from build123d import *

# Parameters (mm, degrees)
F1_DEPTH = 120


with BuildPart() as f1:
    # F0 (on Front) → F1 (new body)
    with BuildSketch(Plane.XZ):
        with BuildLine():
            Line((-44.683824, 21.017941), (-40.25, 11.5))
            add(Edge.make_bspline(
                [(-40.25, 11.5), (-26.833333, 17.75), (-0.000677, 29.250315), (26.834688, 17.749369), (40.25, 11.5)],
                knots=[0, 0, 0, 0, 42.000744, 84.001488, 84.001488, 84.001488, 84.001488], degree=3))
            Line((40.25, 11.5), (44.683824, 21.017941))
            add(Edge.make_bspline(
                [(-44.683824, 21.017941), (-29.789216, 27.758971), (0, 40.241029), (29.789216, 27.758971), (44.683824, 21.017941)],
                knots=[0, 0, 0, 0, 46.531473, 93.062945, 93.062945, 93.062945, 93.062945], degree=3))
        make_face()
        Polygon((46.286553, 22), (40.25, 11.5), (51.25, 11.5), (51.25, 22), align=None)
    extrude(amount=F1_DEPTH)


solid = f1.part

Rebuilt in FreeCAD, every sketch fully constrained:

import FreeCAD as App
import Part
import Sketcher


def add_polygon(sketch, points):
    """Adds a closed chain of lines whose ends are joined by coincident constraints."""
    first, n = sketch.GeometryCount, len(points)
    for a, b in zip(points, points[1:] + points[:1]):
        sketch.addGeometry(Part.LineSegment(App.Vector(*a, 0), App.Vector(*b, 0)), False)
    for i in range(n):
        sketch.addConstraint(Sketcher.Constraint("Coincident", first + i, 2, first + (i + 1) % n, 1))

doc = App.newDocument("Part")
body = doc.addObject("PartDesign::Body", "Body")
body.AllowCompound = True

sketch1 = doc.addObject("Sketcher::SketchObject", "Sketch")
body.addObject(sketch1)
sketch1.AttachmentSupport = (doc.XZ_Plane, [""])
sketch1.MapMode = "FlatFace"
sketch1.addGeometry(Part.LineSegment(App.Vector(-44.683824, 21.017941, 0), App.Vector(-40.25, 11.5, 0)), False)
sketch1.addGeometry(Part.BSplineCurve([App.Vector(-40.25, 11.5, 0), App.Vector(-26.833333, 17.75, 0), App.Vector(-0.000677, 29.250315, 0), App.Vector(26.834688, 17.749369, 0), App.Vector(40.25, 11.5, 0)], [4, 1, 4], [0, 42.000744, 84.001488], False, 3, [1, 1, 1, 1, 1], False), False)
sketch1.addGeometry(Part.LineSegment(App.Vector(40.25, 11.5, 0), App.Vector(44.683824, 21.017941, 0)), False)
sketch1.addGeometry(Part.BSplineCurve([App.Vector(-44.683824, 21.017941, 0), App.Vector(-29.789216, 27.758971, 0), App.Vector(0, 40.241029, 0), App.Vector(29.789216, 27.758971, 0), App.Vector(44.683824, 21.017941, 0)], [4, 1, 4], [0, 46.531473, 93.062945], False, 3, [1, 1, 1, 1, 1], False), False)
add_polygon(sketch1, [(46.286553, 22), (40.25, 11.5), (51.25, 11.5), (51.25, 22)])
sketch1.addConstraint([
    Sketcher.Constraint("Block", 1),
    Sketcher.Constraint("Block", 3),
    Sketcher.Constraint("Coincident", 0, 2, 1, 1),
    Sketcher.Constraint("Coincident", 1, 2, 2, 1),
    Sketcher.Constraint("Coincident", 2, 2, 3, 2),
    Sketcher.Constraint("Coincident", 3, 1, 0, 1),
    Sketcher.Constraint("Horizontal", 5),
    Sketcher.Constraint("Vertical", 6),
    Sketcher.Constraint("Horizontal", 7),
    Sketcher.Constraint("Symmetric", 0, 2, 4, 2, -2),
    Sketcher.Constraint("DistanceX", 5, 1, 5, 2, 11.0),
    Sketcher.Constraint("DistanceY", 6, 1, 6, 2, 10.5),
    Sketcher.Constraint("DistanceX", 7, 2, 7, 1, 4.963447),
])
pad1 = doc.addObject("PartDesign::Pad", "Pad")
body.addObject(pad1)
pad1.Profile = sketch1
pad1.Length = 120

doc.recompute()
